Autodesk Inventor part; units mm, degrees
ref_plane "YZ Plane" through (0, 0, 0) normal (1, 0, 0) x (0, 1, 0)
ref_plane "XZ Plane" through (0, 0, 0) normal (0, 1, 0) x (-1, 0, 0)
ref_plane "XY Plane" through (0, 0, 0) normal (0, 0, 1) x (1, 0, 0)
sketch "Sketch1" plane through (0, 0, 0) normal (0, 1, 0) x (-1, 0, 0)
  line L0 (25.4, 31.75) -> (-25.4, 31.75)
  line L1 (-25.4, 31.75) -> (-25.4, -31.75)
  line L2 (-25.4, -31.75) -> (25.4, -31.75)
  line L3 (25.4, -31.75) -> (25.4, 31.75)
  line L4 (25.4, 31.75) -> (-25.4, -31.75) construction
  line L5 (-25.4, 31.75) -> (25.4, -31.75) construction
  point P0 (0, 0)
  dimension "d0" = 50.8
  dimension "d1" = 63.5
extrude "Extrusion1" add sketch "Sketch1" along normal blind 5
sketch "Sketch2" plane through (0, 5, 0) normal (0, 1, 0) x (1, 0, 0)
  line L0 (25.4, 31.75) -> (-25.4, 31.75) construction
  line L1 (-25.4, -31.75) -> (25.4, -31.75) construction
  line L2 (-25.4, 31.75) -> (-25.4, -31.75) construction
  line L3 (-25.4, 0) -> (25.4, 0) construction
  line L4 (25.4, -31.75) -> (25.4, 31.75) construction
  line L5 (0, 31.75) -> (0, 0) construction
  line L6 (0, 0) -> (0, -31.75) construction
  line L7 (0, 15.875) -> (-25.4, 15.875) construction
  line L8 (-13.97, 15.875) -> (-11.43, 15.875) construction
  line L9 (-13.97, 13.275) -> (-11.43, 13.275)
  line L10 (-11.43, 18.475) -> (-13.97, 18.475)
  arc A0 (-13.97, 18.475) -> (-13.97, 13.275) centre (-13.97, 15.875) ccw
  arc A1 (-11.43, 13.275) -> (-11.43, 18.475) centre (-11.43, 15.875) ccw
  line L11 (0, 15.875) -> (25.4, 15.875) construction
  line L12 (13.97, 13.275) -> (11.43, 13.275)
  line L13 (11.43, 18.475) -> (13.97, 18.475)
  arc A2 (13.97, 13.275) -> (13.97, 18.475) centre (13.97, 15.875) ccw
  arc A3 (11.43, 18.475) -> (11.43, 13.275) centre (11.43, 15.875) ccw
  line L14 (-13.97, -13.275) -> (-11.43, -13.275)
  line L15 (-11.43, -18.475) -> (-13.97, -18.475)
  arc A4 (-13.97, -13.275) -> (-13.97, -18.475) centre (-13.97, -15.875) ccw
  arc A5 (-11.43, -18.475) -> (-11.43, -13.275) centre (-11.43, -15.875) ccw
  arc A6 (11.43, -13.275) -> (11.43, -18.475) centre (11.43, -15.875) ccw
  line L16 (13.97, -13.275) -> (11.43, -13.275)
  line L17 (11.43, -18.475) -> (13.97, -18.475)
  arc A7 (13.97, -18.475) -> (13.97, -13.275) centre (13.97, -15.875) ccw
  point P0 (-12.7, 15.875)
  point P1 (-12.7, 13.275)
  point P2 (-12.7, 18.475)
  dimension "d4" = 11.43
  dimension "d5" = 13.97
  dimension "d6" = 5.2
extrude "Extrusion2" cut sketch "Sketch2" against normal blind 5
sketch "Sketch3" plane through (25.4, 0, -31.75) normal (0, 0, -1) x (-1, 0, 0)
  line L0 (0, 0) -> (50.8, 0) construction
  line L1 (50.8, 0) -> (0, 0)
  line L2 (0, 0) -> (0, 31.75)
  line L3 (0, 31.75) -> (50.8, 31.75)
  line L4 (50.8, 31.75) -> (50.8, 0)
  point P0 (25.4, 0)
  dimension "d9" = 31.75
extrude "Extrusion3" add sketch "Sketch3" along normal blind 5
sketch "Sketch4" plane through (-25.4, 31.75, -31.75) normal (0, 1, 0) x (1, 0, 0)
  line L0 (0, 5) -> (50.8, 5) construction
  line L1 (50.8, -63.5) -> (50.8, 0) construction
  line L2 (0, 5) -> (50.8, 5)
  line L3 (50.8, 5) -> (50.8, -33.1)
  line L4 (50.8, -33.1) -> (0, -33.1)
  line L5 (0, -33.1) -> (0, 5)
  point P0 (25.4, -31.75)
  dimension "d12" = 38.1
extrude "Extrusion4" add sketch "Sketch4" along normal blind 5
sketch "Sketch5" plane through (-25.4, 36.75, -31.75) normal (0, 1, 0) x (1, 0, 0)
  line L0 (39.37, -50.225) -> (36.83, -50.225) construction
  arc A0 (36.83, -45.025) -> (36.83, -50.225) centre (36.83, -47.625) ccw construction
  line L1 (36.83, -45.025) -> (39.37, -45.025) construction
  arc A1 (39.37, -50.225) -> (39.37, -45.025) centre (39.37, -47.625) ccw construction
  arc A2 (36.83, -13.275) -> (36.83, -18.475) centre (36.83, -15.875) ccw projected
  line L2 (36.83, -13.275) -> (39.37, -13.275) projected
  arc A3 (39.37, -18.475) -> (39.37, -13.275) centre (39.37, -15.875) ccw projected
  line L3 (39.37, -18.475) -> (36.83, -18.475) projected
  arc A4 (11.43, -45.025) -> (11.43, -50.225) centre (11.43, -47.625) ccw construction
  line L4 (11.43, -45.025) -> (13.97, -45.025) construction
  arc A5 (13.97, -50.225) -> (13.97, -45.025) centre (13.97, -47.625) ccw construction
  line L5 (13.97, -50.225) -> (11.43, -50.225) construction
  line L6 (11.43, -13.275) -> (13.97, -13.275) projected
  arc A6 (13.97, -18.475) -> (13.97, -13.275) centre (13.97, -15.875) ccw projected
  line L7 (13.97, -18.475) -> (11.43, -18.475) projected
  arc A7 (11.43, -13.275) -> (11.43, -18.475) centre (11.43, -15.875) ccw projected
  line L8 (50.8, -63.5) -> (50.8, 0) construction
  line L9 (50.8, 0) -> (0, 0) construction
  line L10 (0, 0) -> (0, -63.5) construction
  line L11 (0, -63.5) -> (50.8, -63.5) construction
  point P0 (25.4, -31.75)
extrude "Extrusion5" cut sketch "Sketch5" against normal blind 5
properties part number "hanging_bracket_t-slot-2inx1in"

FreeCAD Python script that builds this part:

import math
import FreeCAD as App
import Part
import Sketcher
from FreeCAD import Vector
Q = App.Units.Quantity


def add_polygon(sketch, points):
    """Adds a closed chain of lines whose ends are joined by coincident constraints."""
    first, n = sketch.GeometryCount, len(points)
    for a, b in zip(points, points[1:] + points[:1]):
        sketch.addGeometry(Part.LineSegment(App.Vector(*a, 0), App.Vector(*b, 0)), False)
    for i in range(n):
        sketch.addConstraint(Sketcher.Constraint("Coincident", first + i, 2, first + (i + 1) % n, 1))

doc = App.newDocument("Part")
body = doc.addObject("PartDesign::Body", "Body")

# Sketch on XZ plane
sketch1 = doc.addObject("Sketcher::SketchObject", "Sketch")
body.addObject(sketch1)
sketch1.AttachmentSupport = (doc.XZ_Plane, [""])
sketch1.MapMode = "FlatFace"
add_polygon(sketch1, [(-25.4, -31.75), (-25.4, 31.75), (25.4, 31.75), (25.4, -31.75)])  # lines 0-3
sketch1.addConstraint([
    Sketcher.Constraint("Vertical", 0),
    Sketcher.Constraint("Horizontal", 1),
    Sketcher.Constraint("Vertical", 2),
    Sketcher.Constraint("Horizontal", 3),
    Sketcher.Constraint("Symmetric", 0, 2, 2, 2, -1, 1),
    Sketcher.Constraint("DistanceX", 1, 1, 1, 2, Q("2 in")),
    Sketcher.Constraint("DistanceY", 0, 1, 0, 2, Q("2.5 in")),
])
pad1 = doc.addObject("PartDesign::Pad", "Pad")
body.addObject(pad1)
pad1.Profile = sketch1
pad1.Length = 5
pad1.Reversed = True

# Sketch on XZ plane
sketch2 = doc.addObject("Sketcher::SketchObject", "Sketch001")
body.addObject(sketch2)
sketch2.AttachmentSupport = (doc.XZ_Plane, [""])
sketch2.MapMode = "FlatFace"
sketch2.AttachmentOffset = App.Placement(Vector(0, 0, -5), App.Rotation())
sketch2.addGeometry([
    Part.ArcOfCircle(Part.Circle(Vector(-13.97, -15.875, 0), Vector(0, 0, 1), 2.6), math.radians(90), math.radians(270)),  # 0
    Part.LineSegment(Vector(-13.97, -13.275, 0), Vector(-11.43, -13.275, 0)),  # 1
    Part.ArcOfCircle(Part.Circle(Vector(-11.43, -15.875, 0), Vector(0, 0, 1), 2.6), math.radians(-90), math.radians(90)),  # 2
    Part.LineSegment(Vector(-11.43, -18.475, 0), Vector(-13.97, -18.475, 0)),  # 3
    Part.LineSegment(Vector(11.43, -13.275, 0), Vector(13.97, -13.275, 0)),  # 4
    Part.ArcOfCircle(Part.Circle(Vector(13.97, -15.875, 0), Vector(0, 0, 1), 2.6), math.radians(-90), math.radians(90)),  # 5
    Part.LineSegment(Vector(13.97, -18.475, 0), Vector(11.43, -18.475, 0)),  # 6
    Part.ArcOfCircle(Part.Circle(Vector(11.43, -15.875, 0), Vector(0, 0, 1), 2.6), math.radians(90), math.radians(270)),  # 7
    Part.LineSegment(Vector(-11.43, 13.275, 0), Vector(-13.97, 13.275, 0)),  # 8
    Part.ArcOfCircle(Part.Circle(Vector(-13.97, 15.875, 0), Vector(0, 0, 1), 2.6), math.radians(90), math.radians(270)),  # 9
    Part.LineSegment(Vector(-13.97, 18.475, 0), Vector(-11.43, 18.475, 0)),  # 10
    Part.ArcOfCircle(Part.Circle(Vector(-11.43, 15.875, 0), Vector(0, 0, 1), 2.6), math.radians(-90), math.radians(90)),  # 11
    Part.LineSegment(Vector(13.97, 13.275, 0), Vector(11.43, 13.275, 0)),  # 12
    Part.ArcOfCircle(Part.Circle(Vector(11.43, 15.875, 0), Vector(0, 0, 1), 2.6), math.radians(90), math.radians(270)),  # 13
    Part.LineSegment(Vector(11.43, 18.475, 0), Vector(13.97, 18.475, 0)),  # 14
    Part.ArcOfCircle(Part.Circle(Vector(13.97, 15.875, 0), Vector(0, 0, 1), 2.6), math.radians(-90), math.radians(90)),  # 15
], False)
sketch2.addConstraint([
    Sketcher.Constraint("Tangent", 0, 1, 1, 1),
    Sketcher.Constraint("Tangent", 1, 2, 2, 2),
    Sketcher.Constraint("Tangent", 2, 1, 3, 1),
    Sketcher.Constraint("Tangent", 3, 2, 0, 2),
    Sketcher.Constraint("Tangent", 4, 2, 5, 2),
    Sketcher.Constraint("Tangent", 5, 1, 6, 1),
    Sketcher.Constraint("Tangent", 6, 2, 7, 2),
    Sketcher.Constraint("Tangent", 7, 1, 4, 1),
    Sketcher.Constraint("Tangent", 8, 2, 9, 2),
    Sketcher.Constraint("Tangent", 9, 1, 10, 1),
    Sketcher.Constraint("Tangent", 10, 2, 11, 2),
    Sketcher.Constraint("Tangent", 11, 1, 8, 1),
    Sketcher.Constraint("Tangent", 12, 2, 13, 2),
    Sketcher.Constraint("Tangent", 13, 1, 14, 1),
    Sketcher.Constraint("Tangent", 14, 2, 15, 2),
    Sketcher.Constraint("Tangent", 15, 1, 12, 1),
    Sketcher.Constraint("Horizontal", 1),
    Sketcher.Constraint("Horizontal", 3),
    Sketcher.Constraint("Horizontal", 4),
    Sketcher.Constraint("Horizontal", 6),
    Sketcher.Constraint("Horizontal", 8),
    Sketcher.Constraint("Horizontal", 10),
    Sketcher.Constraint("Horizontal", 12),
    Sketcher.Constraint("Horizontal", 14),
    Sketcher.Constraint("Equal", 2, 5),
    Sketcher.Constraint("Equal", 7, 9),
    Sketcher.Constraint("Equal", 11, 13),
    Sketcher.Constraint("Symmetric", 5, 3, 9, 3, -1, 1),
    Sketcher.Constraint("Symmetric", 2, 3, 13, 3, -1, 1),
    Sketcher.Constraint("Symmetric", 0, 3, 5, 3, -2),
    Sketcher.Constraint("Vertical", 2, 3, 11, 3),
    Sketcher.Constraint("Vertical", 7, 3, 13, 3),
    Sketcher.Constraint("Vertical", 5, 3, 15, 3),
    Sketcher.Constraint("DistanceX", 0, 3, -1, 1, Q("0.55 in")),
    Sketcher.Constraint("DistanceX", 2, 3, -1, 1, Q("0.45 in")),
    Sketcher.Constraint("Radius", 0, Q("2.6 mm")),
    Sketcher.Constraint("DistanceY", 0, 3, 9, 3, Q("1.25 in")),
])
pocket1 = doc.addObject("PartDesign::Pocket", "Pocket")
body.addObject(pocket1)
pocket1.Profile = sketch2
pocket1.Length = 5
pocket1.Reversed = True

# Sketch on XY plane
sketch3 = doc.addObject("Sketcher::SketchObject", "Sketch002")
body.addObject(sketch3)
sketch3.AttachmentSupport = (doc.XY_Plane, [""])
sketch3.MapMode = "FlatFace"
sketch3.AttachmentOffset = App.Placement(Vector(0, 0, -1.25 * 25.4), App.Rotation())
add_polygon(sketch3, [(25.4, 0), (-25.4, 0), (-25.4, 31.75), (25.4, 31.75)])  # lines 0-3
sketch3.addConstraint([
    Sketcher.Constraint("Horizontal", 0),
    Sketcher.Constraint("Vertical", 1),
    Sketcher.Constraint("Horizontal", 2),
    Sketcher.Constraint("Vertical", 3),
    Sketcher.Constraint("Symmetric", 0, 2, 3, 2, -1, 1),
    Sketcher.Constraint("DistanceY", 1, 1, 1, 2, Q("1.25 in")),
    Sketcher.Constraint("DistanceX", 0, 2, 0, 1, Q("2 in")),
])
pad2 = doc.addObject("PartDesign::Pad", "Pad001")
body.addObject(pad2)
pad2.Profile = sketch3
pad2.Length = 5
pad2.Reversed = True

# Sketch on XZ plane
sketch4 = doc.addObject("Sketcher::SketchObject", "Sketch003")
body.addObject(sketch4)
sketch4.AttachmentSupport = (doc.XZ_Plane, [""])
sketch4.MapMode = "FlatFace"
sketch4.AttachmentOffset = App.Placement(Vector(0, 0, -1.25 * 25.4), App.Rotation())
add_polygon(sketch4, [(25.4, -36.75), (-25.4, -36.75), (-25.4, 1.35), (25.4, 1.35)])  # lines 0-3
sketch4.addConstraint([
    Sketcher.Constraint("Horizontal", 0),
    Sketcher.Constraint("Vertical", 1),
    Sketcher.Constraint("Horizontal", 2),
    Sketcher.Constraint("Vertical", 3),
    Sketcher.Constraint("DistanceY", 1, 1, 1, 2, Q("1.5 in")),
    Sketcher.Constraint("DistanceX", 0, 2, 0, 1, Q("2 in")),
    Sketcher.Constraint("DistanceX", 0, 2, -1, 1, Q("1 in")),
    Sketcher.Constraint("DistanceY", 0, 2, -1, 1, Q("36.75 mm")),
])
pad3 = doc.addObject("PartDesign::Pad", "Pad002")
body.addObject(pad3)
pad3.Profile = sketch4
pad3.Length = 5
pad3.Reversed = True

# Sketch on XZ plane
sketch5 = doc.addObject("Sketcher::SketchObject", "Sketch004")
body.addObject(sketch5)
sketch5.AttachmentSupport = (doc.XZ_Plane, [""])
sketch5.MapMode = "FlatFace"
sketch5.AttachmentOffset = App.Placement(Vector(0, 0, -36.75), App.Rotation())
sketch5.addGeometry([
    Part.LineSegment(Vector(13.97, -18.475, 0), Vector(11.43, -18.475, 0)),  # 0
    Part.ArcOfCircle(Part.Circle(Vector(11.43, -15.875, 0), Vector(0, 0, 1), 2.6), math.radians(90), math.radians(270)),  # 1
    Part.LineSegment(Vector(11.43, -13.275, 0), Vector(13.97, -13.275, 0)),  # 2
    Part.ArcOfCircle(Part.Circle(Vector(13.97, -15.875, 0), Vector(0, 0, 1), 2.6), math.radians(-90), math.radians(90)),  # 3
    Part.LineSegment(Vector(-11.43, -18.475, 0), Vector(-13.97, -18.475, 0)),  # 4
    Part.ArcOfCircle(Part.Circle(Vector(-13.97, -15.875, 0), Vector(0, 0, 1), 2.6), math.radians(90), math.radians(270)),  # 5
    Part.LineSegment(Vector(-13.97, -13.275, 0), Vector(-11.43, -13.275, 0)),  # 6
    Part.ArcOfCircle(Part.Circle(Vector(-11.43, -15.875, 0), Vector(0, 0, 1), 2.6), math.radians(-90), math.radians(90)),  # 7
], False)
sketch5.addConstraint([
    Sketcher.Constraint("Tangent", 0, 2, 1, 2),
    Sketcher.Constraint("Tangent", 1, 1, 2, 1),
    Sketcher.Constraint("Tangent", 2, 2, 3, 2),
    Sketcher.Constraint("Tangent", 3, 1, 0, 1),
    Sketcher.Constraint("Tangent", 4, 2, 5, 2),
    Sketcher.Constraint("Tangent", 5, 1, 6, 1),
    Sketcher.Constraint("Tangent", 6, 2, 7, 2),
    Sketcher.Constraint("Tangent", 7, 1, 4, 1),
    Sketcher.Constraint("Horizontal", 0),
    Sketcher.Constraint("Horizontal", 2),
    Sketcher.Constraint("Horizontal", 4),
    Sketcher.Constraint("Horizontal", 6),
    Sketcher.Constraint("Equal", 3, 5),
    Sketcher.Constraint("Symmetric", 3, 3, 5, 3, -2),
    Sketcher.Constraint("Equal", 2, 4),
    Sketcher.Constraint("DistanceX", 0, 2, 0, 1, Q("0.1 in")),
    Sketcher.Constraint("DistanceX", 5, 3, 1, 3, Q("1 in")),
    Sketcher.Constraint("Radius", 1, Q("2.6 mm")),
    Sketcher.Constraint("DistanceY", 1, 3, -1, 1, Q("0.625 in")),
])
pocket2 = doc.addObject("PartDesign::Pocket", "Pocket001")
body.addObject(pocket2)
pocket2.Profile = sketch5
pocket2.Length = 5
pocket2.Reversed = True

doc.recompute()
